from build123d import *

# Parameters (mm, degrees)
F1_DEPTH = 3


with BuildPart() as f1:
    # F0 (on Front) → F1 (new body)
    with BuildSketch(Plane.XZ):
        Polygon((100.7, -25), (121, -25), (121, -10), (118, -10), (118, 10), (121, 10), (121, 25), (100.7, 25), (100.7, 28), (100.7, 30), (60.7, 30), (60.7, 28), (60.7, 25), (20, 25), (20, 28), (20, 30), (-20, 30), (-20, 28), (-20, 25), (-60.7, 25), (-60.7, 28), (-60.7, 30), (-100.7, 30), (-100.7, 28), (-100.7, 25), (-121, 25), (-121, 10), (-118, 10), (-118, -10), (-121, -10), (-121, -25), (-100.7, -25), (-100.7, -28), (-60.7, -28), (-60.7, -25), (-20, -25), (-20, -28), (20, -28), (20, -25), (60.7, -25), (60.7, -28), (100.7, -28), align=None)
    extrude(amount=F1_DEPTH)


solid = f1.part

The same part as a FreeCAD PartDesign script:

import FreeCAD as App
import Part
import Sketcher
Q = App.Units.Quantity


def add_polygon(sketch, points):
    """Adds a closed chain of lines whose ends are joined by coincident constraints."""
    first, n = sketch.GeometryCount, len(points)
    for a, b in zip(points, points[1:] + points[:1]):
        sketch.addGeometry(Part.LineSegment(App.Vector(*a, 0), App.Vector(*b, 0)), False)
    for i in range(n):
        sketch.addConstraint(Sketcher.Constraint("Coincident", first + i, 2, first + (i + 1) % n, 1))

doc = App.newDocument("Part")
body = doc.addObject("PartDesign::Body", "Body")

sketch1 = body.newObject("Sketcher::SketchObject", "Sketch")
sketch1.AttachmentSupport = (doc.getObject("XZ_Plane"), [""])
sketch1.MapMode = "FlatFace"
add_polygon(sketch1, [(100.7, -25), (121, -25), (121, -10), (118, -10), (118, 10), (121, 10), (121, 25), (100.7, 25), (100.7, 30), (60.7, 30), (60.7, 25), (20, 25), (20, 30), (-20, 30), (-20, 25), (-60.7, 25), (-60.7, 30), (-100.7, 30), (-100.7, 25), (-121, 25), (-121, 10), (-118, 10), (-118, -10), (-121, -10), (-121, -25), (-100.7, -25), (-100.7, -28), (-60.7, -28), (-60.7, -25), (-20, -25), (-20, -28), (20, -28), (20, -25), (60.7, -25), (60.7, -28), (100.7, -28)])
sketch1.addConstraint([
    Sketcher.Constraint("Horizontal", 0),
    Sketcher.Constraint("Vertical", 1),
    Sketcher.Constraint("Horizontal", 2),
    Sketcher.Constraint("Vertical", 3),
    Sketcher.Constraint("Horizontal", 4),
    Sketcher.Constraint("Vertical", 5),
    Sketcher.Constraint("Horizontal", 6),
    Sketcher.Constraint("Vertical", 7),
    Sketcher.Constraint("Horizontal", 8),
    Sketcher.Constraint("Vertical", 9),
    Sketcher.Constraint("Horizontal", 10),
    Sketcher.Constraint("Vertical", 11),
    Sketcher.Constraint("Horizontal", 12),
    Sketcher.Constraint("Vertical", 13),
    Sketcher.Constraint("Horizontal", 14),
    Sketcher.Constraint("Vertical", 15),
    Sketcher.Constraint("Horizontal", 16),
    Sketcher.Constraint("Vertical", 17),
    Sketcher.Constraint("Horizontal", 18),
    Sketcher.Constraint("Vertical", 19),
    Sketcher.Constraint("Horizontal", 20),
    Sketcher.Constraint("Vertical", 21),
    Sketcher.Constraint("Horizontal", 22),
    Sketcher.Constraint("Vertical", 23),
    Sketcher.Constraint("Horizontal", 24),
    Sketcher.Constraint("Vertical", 25),
    Sketcher.Constraint("Horizontal", 26),
    Sketcher.Constraint("Vertical", 27),
    Sketcher.Constraint("Horizontal", 28),
    Sketcher.Constraint("Vertical", 29),
    Sketcher.Constraint("Horizontal", 30),
    Sketcher.Constraint("Vertical", 31),
    Sketcher.Constraint("Horizontal", 32),
    Sketcher.Constraint("Vertical", 33),
    Sketcher.Constraint("Horizontal", 34),
    Sketcher.Constraint("Vertical", 35),
    Sketcher.Constraint("Symmetric", 0, 2, 18, 2, -1, 1),
    Sketcher.Constraint("Symmetric", 2, 2, 20, 2, -1, 1),
    Sketcher.Constraint("Symmetric", 4, 2, 22, 2, -1, 1),
    Sketcher.Constraint("Symmetric", 6, 2, 24, 2, -1, 1),
    Sketcher.Constraint("Symmetric", 9, 2, 27, 2, -1, 1),
    Sketcher.Constraint("Symmetric", 13, 2, 31, 2, -1, 1),
    Sketcher.Constraint("Symmetric", 10, 2, 13, 2, -2),
    Sketcher.Constraint("Symmetric", 8, 2, 15, 2, -2),
    Sketcher.Constraint("Symmetric", 6, 2, 17, 2, -2),
    Sketcher.Constraint("Symmetric", 4, 2, 19, 2, -2),
    Sketcher.Constraint("Symmetric", 26, 2, 33, 2, -2),
    Sketcher.Constraint("Horizontal", 6, 2, 9, 2),
    Sketcher.Constraint("Horizontal", 8, 2, 11, 2),
    Sketcher.Constraint("Horizontal", 26, 2, 29, 2),
    Sketcher.Constraint("Vertical", 13, 2, 28, 2),
    Sketcher.Constraint("Vertical", 7, 2, 34, 2),
    Sketcher.Constraint("Equal", 8, 12),
    Sketcher.Constraint("Equal", 22, 25),
    Sketcher.Constraint("DistanceX", 2, 2, 2, 1, Q("3 mm")),
    Sketcher.Constraint("DistanceX", 8, 2, 8, 1, Q("40 mm")),
    Sketcher.Constraint("DistanceY", 1, 1, 1, 2, Q("15 mm")),
    Sketcher.Constraint("DistanceY", 3, 1, 3, 2, Q("20 mm")),
    Sketcher.Constraint("DistanceY", 7, 1, 7, 2, Q("5 mm")),
    Sketcher.Constraint("DistanceX", 0, 1, 0, 2, Q("20.3 mm")),
    Sketcher.Constraint("DistanceX", 10, 2, 10, 1, Q("40.7 mm")),
])
pad1 = body.newObject("PartDesign::Pad", "Pad")
pad1.Profile = sketch1
pad1.Length = 3

doc.recompute()
